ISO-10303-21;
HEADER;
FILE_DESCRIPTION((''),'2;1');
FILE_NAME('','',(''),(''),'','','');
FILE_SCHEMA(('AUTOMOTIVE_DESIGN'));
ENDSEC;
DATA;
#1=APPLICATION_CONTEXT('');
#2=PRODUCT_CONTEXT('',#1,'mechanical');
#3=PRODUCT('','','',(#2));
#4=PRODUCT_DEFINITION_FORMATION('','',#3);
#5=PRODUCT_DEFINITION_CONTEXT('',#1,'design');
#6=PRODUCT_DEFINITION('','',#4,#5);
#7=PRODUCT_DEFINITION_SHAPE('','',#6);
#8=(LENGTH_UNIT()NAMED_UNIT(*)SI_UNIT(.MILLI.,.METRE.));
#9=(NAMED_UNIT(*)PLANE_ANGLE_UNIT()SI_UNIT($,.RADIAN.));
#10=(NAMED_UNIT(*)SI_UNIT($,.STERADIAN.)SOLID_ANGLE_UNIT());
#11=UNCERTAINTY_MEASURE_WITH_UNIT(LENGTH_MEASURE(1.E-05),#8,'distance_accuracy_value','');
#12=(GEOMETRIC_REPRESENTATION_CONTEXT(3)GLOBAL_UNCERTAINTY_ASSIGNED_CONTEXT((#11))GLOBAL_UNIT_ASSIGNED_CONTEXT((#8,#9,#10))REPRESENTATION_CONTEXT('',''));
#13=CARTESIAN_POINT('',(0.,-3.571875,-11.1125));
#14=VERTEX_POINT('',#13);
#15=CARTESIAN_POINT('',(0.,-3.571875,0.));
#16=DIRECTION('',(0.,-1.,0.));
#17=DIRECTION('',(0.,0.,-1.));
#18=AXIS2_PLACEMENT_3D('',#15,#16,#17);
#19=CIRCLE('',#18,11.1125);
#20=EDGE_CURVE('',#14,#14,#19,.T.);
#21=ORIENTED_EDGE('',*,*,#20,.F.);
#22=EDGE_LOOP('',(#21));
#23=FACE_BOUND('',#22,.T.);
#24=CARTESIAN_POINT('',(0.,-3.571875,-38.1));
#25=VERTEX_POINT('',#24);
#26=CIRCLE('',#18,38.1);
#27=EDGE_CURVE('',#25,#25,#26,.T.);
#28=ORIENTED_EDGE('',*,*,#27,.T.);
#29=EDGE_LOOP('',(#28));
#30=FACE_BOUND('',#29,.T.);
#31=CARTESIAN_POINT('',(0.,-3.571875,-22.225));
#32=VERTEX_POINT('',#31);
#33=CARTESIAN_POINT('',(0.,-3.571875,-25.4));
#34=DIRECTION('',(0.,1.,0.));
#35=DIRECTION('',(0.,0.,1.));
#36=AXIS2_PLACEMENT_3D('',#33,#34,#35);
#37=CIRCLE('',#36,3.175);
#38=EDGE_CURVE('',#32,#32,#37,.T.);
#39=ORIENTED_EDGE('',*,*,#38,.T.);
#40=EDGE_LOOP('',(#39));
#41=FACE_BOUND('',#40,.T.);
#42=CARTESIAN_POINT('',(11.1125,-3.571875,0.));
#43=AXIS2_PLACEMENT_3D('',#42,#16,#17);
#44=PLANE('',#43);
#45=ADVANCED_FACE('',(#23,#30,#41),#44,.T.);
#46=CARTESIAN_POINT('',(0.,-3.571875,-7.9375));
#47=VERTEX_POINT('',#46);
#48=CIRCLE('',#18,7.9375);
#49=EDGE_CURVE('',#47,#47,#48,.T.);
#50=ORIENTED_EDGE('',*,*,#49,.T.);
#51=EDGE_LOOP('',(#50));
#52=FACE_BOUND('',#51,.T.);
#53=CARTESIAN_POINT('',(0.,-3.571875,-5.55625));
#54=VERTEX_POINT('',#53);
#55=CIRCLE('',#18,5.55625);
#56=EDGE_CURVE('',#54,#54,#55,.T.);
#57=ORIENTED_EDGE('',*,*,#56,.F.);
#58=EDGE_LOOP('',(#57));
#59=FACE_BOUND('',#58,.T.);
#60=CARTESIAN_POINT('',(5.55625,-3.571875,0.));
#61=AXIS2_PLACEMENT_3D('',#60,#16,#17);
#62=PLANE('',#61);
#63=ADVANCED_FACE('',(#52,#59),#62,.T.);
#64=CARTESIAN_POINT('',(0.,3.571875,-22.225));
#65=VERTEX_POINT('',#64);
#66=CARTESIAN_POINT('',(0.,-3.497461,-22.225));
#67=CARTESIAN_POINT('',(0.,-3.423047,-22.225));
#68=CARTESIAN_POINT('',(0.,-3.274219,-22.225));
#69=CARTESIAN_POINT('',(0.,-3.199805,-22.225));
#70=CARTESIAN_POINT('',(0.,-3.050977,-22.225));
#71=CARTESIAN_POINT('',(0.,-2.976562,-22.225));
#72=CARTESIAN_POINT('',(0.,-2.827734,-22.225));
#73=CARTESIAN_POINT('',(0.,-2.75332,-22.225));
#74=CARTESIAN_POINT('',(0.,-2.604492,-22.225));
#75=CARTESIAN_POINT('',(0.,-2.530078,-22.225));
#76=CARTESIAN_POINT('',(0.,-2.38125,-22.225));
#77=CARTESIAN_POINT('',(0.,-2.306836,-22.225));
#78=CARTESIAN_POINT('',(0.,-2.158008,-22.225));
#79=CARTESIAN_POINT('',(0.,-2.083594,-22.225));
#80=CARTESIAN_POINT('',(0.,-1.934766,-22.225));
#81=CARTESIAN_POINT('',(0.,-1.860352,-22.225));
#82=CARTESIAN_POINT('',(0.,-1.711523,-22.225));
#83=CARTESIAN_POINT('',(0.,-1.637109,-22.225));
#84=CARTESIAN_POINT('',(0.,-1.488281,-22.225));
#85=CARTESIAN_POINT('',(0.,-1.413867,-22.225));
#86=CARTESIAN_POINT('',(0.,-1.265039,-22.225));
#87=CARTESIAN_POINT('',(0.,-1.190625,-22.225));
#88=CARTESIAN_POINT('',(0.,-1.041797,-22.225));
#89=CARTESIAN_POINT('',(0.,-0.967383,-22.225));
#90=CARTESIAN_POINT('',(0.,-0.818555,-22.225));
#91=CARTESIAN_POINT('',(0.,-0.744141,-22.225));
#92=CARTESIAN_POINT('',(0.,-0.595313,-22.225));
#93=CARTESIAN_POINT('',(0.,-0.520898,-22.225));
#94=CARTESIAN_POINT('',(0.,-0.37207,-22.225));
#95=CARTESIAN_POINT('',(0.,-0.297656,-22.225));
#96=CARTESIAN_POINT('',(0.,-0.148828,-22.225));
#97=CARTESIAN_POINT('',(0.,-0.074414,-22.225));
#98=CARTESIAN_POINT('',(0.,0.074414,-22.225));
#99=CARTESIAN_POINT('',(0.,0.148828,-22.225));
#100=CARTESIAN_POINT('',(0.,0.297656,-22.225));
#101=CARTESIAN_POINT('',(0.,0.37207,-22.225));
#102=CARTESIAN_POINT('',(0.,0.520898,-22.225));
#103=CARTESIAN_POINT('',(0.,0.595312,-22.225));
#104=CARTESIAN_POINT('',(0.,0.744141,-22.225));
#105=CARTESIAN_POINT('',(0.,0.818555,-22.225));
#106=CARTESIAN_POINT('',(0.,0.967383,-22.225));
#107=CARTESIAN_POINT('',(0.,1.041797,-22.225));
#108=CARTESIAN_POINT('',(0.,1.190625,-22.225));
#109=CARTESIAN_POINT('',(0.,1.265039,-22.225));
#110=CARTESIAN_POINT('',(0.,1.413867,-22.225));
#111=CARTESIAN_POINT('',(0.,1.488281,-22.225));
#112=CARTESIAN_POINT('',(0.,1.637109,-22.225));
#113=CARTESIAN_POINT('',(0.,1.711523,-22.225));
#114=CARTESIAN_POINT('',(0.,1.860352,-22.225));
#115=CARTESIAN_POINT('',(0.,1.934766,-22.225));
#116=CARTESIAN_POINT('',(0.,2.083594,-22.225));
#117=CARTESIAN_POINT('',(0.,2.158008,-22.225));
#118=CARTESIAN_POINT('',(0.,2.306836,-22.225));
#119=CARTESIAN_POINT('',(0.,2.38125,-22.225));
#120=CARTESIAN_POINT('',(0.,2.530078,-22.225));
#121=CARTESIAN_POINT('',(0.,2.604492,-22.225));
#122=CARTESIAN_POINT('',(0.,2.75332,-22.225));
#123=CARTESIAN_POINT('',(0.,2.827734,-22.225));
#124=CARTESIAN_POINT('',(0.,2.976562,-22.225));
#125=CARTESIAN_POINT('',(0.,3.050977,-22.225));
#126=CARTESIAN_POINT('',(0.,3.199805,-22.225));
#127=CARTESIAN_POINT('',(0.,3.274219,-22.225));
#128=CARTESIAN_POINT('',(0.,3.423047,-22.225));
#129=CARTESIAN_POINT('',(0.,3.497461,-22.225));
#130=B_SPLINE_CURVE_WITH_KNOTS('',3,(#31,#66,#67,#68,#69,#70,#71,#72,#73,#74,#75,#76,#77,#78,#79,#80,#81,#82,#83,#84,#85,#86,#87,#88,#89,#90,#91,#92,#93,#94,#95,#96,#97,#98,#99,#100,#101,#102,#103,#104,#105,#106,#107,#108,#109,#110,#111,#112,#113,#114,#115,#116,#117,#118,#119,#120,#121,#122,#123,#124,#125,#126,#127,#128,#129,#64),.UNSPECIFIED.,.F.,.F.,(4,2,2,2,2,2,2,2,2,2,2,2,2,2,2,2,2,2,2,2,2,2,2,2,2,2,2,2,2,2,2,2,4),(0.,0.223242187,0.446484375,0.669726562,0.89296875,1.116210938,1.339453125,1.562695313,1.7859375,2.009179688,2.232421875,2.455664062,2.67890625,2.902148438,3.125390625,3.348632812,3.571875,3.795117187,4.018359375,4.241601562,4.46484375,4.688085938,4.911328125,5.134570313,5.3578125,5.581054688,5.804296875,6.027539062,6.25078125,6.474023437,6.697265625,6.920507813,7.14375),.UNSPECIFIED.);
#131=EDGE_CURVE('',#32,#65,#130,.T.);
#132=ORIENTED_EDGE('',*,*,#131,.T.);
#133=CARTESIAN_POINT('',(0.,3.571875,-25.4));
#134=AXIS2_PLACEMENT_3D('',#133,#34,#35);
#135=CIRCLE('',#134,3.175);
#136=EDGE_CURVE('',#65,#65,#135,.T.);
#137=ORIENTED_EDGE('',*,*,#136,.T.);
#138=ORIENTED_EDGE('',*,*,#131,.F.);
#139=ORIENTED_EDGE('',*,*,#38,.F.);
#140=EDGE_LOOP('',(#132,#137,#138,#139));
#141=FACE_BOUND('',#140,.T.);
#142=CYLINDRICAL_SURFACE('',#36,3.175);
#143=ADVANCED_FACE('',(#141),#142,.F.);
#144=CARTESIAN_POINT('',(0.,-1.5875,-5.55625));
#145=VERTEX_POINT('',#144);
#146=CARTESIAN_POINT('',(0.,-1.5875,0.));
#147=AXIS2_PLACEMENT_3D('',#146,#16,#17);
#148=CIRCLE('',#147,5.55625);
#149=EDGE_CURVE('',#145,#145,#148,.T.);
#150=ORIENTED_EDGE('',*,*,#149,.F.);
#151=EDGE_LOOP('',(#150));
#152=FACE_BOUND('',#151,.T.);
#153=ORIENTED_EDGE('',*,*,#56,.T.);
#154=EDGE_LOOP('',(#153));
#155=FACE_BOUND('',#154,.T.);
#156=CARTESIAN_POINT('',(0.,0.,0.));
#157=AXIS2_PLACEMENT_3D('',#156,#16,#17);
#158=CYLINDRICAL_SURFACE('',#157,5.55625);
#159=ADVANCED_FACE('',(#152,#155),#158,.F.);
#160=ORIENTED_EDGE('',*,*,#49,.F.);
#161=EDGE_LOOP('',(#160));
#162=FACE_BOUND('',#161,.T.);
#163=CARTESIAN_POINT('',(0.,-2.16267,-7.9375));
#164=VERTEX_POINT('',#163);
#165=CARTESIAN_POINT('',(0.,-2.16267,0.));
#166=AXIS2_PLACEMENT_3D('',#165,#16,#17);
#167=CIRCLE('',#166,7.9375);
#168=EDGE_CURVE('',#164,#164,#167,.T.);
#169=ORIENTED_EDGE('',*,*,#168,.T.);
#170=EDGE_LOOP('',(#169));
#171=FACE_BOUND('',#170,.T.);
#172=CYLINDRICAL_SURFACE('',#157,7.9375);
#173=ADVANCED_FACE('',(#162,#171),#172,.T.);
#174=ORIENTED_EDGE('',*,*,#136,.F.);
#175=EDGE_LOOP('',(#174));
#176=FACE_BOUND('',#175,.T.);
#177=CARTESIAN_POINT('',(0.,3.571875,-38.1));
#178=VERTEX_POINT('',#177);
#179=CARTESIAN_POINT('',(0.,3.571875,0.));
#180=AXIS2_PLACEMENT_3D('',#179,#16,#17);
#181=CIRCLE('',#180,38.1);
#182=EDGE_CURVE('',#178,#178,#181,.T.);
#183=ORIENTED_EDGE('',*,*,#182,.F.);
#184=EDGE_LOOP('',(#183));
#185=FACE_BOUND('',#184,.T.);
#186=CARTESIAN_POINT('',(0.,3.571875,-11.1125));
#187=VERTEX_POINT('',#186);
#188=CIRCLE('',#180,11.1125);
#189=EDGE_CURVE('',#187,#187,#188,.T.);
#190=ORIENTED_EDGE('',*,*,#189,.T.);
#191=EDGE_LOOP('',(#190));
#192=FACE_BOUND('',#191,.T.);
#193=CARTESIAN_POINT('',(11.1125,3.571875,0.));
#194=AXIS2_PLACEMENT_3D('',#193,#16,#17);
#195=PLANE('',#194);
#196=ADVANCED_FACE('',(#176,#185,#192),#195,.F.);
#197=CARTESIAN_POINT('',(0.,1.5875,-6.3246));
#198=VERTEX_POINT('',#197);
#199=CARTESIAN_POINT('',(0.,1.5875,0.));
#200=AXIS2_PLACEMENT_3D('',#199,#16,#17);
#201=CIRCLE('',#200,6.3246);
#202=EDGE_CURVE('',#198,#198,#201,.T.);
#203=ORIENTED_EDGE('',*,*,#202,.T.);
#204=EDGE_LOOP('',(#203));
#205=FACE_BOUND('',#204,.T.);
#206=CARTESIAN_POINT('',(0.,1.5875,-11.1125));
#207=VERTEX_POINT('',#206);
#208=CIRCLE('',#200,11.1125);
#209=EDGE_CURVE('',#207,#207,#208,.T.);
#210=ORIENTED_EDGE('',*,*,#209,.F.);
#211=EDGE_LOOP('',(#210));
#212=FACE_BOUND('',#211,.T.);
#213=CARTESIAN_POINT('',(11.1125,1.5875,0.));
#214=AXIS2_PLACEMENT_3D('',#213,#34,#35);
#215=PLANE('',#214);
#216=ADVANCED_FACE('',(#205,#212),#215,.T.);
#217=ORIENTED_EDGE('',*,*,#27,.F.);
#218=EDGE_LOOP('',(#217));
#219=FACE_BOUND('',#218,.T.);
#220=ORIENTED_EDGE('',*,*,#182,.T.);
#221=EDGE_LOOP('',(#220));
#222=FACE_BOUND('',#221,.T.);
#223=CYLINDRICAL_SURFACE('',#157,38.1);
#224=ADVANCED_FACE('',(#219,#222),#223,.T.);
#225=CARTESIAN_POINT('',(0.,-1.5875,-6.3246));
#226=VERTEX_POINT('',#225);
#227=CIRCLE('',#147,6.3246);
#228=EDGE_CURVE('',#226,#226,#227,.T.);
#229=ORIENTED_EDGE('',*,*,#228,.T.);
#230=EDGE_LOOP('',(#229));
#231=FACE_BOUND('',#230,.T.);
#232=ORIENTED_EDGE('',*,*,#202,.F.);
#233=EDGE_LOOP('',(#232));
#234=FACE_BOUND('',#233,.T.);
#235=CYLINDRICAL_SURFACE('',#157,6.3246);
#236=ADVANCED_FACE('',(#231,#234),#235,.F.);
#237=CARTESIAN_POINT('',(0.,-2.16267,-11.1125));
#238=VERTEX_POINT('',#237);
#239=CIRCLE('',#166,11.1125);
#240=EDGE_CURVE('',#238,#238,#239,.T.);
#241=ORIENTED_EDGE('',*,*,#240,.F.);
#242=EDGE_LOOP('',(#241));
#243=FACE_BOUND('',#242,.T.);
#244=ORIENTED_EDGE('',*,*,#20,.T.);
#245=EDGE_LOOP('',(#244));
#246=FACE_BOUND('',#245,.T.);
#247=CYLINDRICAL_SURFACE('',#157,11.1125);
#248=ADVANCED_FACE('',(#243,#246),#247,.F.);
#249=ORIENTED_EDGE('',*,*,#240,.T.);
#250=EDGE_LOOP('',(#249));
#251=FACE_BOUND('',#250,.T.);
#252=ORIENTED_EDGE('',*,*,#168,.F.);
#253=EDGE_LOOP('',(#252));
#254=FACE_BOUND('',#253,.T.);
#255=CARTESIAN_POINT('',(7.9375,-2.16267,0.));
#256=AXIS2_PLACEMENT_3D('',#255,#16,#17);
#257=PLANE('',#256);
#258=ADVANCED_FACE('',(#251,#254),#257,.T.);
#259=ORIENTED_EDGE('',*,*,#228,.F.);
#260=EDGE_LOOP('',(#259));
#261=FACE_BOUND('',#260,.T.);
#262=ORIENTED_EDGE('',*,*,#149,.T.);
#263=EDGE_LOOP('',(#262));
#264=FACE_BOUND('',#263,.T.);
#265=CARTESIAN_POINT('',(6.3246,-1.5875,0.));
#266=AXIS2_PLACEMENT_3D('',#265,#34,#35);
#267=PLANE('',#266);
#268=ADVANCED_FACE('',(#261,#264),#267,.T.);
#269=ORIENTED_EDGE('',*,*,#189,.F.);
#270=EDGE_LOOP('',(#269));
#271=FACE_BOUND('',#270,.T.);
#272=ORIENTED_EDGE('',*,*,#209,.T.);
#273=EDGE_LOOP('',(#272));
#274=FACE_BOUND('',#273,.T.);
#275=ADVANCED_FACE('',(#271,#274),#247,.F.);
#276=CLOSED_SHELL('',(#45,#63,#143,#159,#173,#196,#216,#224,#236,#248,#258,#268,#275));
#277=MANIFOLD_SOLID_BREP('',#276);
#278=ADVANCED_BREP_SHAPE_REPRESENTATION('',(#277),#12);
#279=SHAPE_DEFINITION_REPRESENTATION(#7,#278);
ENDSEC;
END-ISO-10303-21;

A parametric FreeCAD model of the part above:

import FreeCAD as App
import Part
import Sketcher
from FreeCAD import Vector
Q = App.Units.Quantity

doc = App.newDocument("Part")
params = doc.addObject("Spreadsheet::Sheet", "Params")
for row, (alias, value) in enumerate([
    ("sketch1_width", "1.0625 in"),
    ("sketch1_width2", "0.09375 in"),
    ("sketch1_width3", "0.125 in"),
    ("sketch1_height", "0.078125 in"),
    ("revolution_angle", "360 deg"),
    ("sketch2_diameter", "0.25 in"),
], start=1):
    params.set(f"A{row}", alias)
    params.set(f"B{row}", "=" + value)
    params.setAlias(f"B{row}", alias)

body = doc.addObject("PartDesign::Body", "Body")

# Sketch on XY plane
sketch1 = body.newObject("Sketcher::SketchObject", "Sketch")
sketch1.AttachmentSupport = (doc.getObject("XY_Plane"), [""])
sketch1.MapMode = "FlatFace"
sketch1.addGeometry(Part.LineSegment(Vector(38.1, 3.6, 0), Vector(11.1, 3.6, 0)), False)
sketch1.addGeometry(Part.LineSegment(Vector(11.1, 3.6, 0), Vector(11.1, 1.6, 0)), False)
sketch1.addGeometry(Part.LineSegment(Vector(11.1, 1.6, 0), Vector(6.3, 1.6, 0)), False)
sketch1.addGeometry(Part.LineSegment(Vector(6.3, 1.6, 0), Vector(6.3, -1.6, 0)), False)
sketch1.addGeometry(Part.LineSegment(Vector(6.3, -1.6, 0), Vector(5.6, -1.6, 0)), False)
sketch1.addGeometry(Part.LineSegment(Vector(5.6, -1.6, 0), Vector(5.6, -3.6, 0)), False)
sketch1.addGeometry(Part.LineSegment(Vector(5.6, -3.6, 0), Vector(7.9, -3.6, 0)), False)
sketch1.addGeometry(Part.LineSegment(Vector(7.9, -3.6, 0), Vector(7.9, -2.2, 0)), False)
sketch1.addGeometry(Part.LineSegment(Vector(7.9, -2.2, 0), Vector(11.1, -2.2, 0)), False)
sketch1.addGeometry(Part.LineSegment(Vector(11.1, -2.2, 0), Vector(11.1, -3.6, 0)), False)
sketch1.addGeometry(Part.LineSegment(Vector(11.1, -3.6, 0), Vector(38.1, -3.6, 0)), False)
sketch1.addGeometry(Part.LineSegment(Vector(38.1, -3.6, 0), Vector(38.1, 3.6, 0)), False)
sketch1.addConstraint(Sketcher.Constraint("Coincident", 0, 2, 1, 1))
sketch1.addConstraint(Sketcher.Constraint("Coincident", 1, 2, 2, 1))
sketch1.addConstraint(Sketcher.Constraint("Coincident", 2, 2, 3, 1))
sketch1.addConstraint(Sketcher.Constraint("Coincident", 3, 2, 4, 1))
sketch1.addConstraint(Sketcher.Constraint("Coincident", 4, 2, 5, 1))
sketch1.addConstraint(Sketcher.Constraint("Coincident", 5, 2, 6, 1))
sketch1.addConstraint(Sketcher.Constraint("Coincident", 6, 2, 7, 1))
sketch1.addConstraint(Sketcher.Constraint("Coincident", 7, 2, 8, 1))
sketch1.addConstraint(Sketcher.Constraint("Coincident", 8, 2, 9, 1))
sketch1.addConstraint(Sketcher.Constraint("Coincident", 9, 2, 10, 1))
sketch1.addConstraint(Sketcher.Constraint("Coincident", 10, 2, 11, 1))
sketch1.addConstraint(Sketcher.Constraint("Coincident", 11, 2, 0, 1))
sketch1.addConstraint(Sketcher.Constraint("Horizontal", 0))
sketch1.addConstraint(Sketcher.Constraint("Vertical", 1))
sketch1.addConstraint(Sketcher.Constraint("Horizontal", 2))
sketch1.addConstraint(Sketcher.Constraint("Vertical", 3))
sketch1.addConstraint(Sketcher.Constraint("Horizontal", 4))
sketch1.addConstraint(Sketcher.Constraint("Vertical", 5))
sketch1.addConstraint(Sketcher.Constraint("Horizontal", 6))
sketch1.addConstraint(Sketcher.Constraint("Vertical", 7))
sketch1.addConstraint(Sketcher.Constraint("Horizontal", 8))
sketch1.addConstraint(Sketcher.Constraint("Vertical", 9))
sketch1.addConstraint(Sketcher.Constraint("Horizontal", 10))
sketch1.addConstraint(Sketcher.Constraint("Vertical", 11))
sketch1.addConstraint(Sketcher.Constraint("Symmetric", 0, 2, 9, 2, -1))
sketch1.addConstraint(Sketcher.Constraint("Horizontal", 6, 2, 9, 2))
sketch1.addConstraint(Sketcher.Constraint("Equal", 8, 3))
sketch1.addConstraint(Sketcher.Constraint("Equal", 1, 5))
sketch1.addConstraint(Sketcher.Constraint("DistanceX", -1, 1, 10, 2, Q("1.5 in")))
sketch1.addConstraint(Sketcher.Constraint("DistanceX", 0, 2, 0, 1, Q("1.0625 in")))
sketch1.addConstraint(Sketcher.Constraint("DistanceX", 6, 1, 6, 2, Q("0.09375 in")))
sketch1.addConstraint(Sketcher.Constraint("DistanceX", 8, 1, 8, 2, Q("0.125 in")))
sketch1.addConstraint(Sketcher.Constraint("DistanceY", 1, 2, 1, 1, Q("0.078125 in")))
sketch1.addConstraint(Sketcher.Constraint("DistanceX", 2, 2, 2, 1, Q("0.1885 in")))
sketch1.addConstraint(Sketcher.Constraint("DistanceY", 7, 1, 7, 2, Q("1.409205 mm")))
sketch1.setExpression("Constraints[29]", "Params.sketch1_width")
sketch1.setExpression("Constraints[30]", "Params.sketch1_width2")
sketch1.setExpression("Constraints[31]", "Params.sketch1_width3")
sketch1.setExpression("Constraints[32]", "Params.sketch1_height")
revolution = body.newObject("PartDesign::Revolution", "Revolution")
revolution.Profile = sketch1
revolution.ReferenceAxis = (sketch1, ["V_Axis"])
revolution.setExpression("Angle", "Params.revolution_angle")

# Sketch on XZ plane
sketch2 = body.newObject("Sketcher::SketchObject", "Sketch001")
sketch2.AttachmentSupport = (doc.getObject("XZ_Plane"), [""])
sketch2.MapMode = "FlatFace"
sketch2.AttachmentOffset = App.Placement(Vector(0, 0, -0.140625 * 25.4), App.Rotation())
sketch2.addGeometry(Part.Circle(Vector(0, -25.4, 0), Vector(0, 0, 1), 3.2), False)
sketch2.addConstraint(Sketcher.Constraint("PointOnObject", 0, 3, -2))
sketch2.addConstraint(Sketcher.Constraint("Diameter", 0, Q("0.25 in")))
sketch2.addConstraint(Sketcher.Constraint("DistanceY", 0, 3, -1, 1, Q("1 in")))
sketch2.setExpression("Constraints[1]", "Params.sketch2_diameter")
pocket1 = body.newObject("PartDesign::Pocket", "Pocket")
pocket1.Profile = sketch2
pocket1.Type = "ThroughAll"
pocket1.Reversed = True

doc.recompute()
